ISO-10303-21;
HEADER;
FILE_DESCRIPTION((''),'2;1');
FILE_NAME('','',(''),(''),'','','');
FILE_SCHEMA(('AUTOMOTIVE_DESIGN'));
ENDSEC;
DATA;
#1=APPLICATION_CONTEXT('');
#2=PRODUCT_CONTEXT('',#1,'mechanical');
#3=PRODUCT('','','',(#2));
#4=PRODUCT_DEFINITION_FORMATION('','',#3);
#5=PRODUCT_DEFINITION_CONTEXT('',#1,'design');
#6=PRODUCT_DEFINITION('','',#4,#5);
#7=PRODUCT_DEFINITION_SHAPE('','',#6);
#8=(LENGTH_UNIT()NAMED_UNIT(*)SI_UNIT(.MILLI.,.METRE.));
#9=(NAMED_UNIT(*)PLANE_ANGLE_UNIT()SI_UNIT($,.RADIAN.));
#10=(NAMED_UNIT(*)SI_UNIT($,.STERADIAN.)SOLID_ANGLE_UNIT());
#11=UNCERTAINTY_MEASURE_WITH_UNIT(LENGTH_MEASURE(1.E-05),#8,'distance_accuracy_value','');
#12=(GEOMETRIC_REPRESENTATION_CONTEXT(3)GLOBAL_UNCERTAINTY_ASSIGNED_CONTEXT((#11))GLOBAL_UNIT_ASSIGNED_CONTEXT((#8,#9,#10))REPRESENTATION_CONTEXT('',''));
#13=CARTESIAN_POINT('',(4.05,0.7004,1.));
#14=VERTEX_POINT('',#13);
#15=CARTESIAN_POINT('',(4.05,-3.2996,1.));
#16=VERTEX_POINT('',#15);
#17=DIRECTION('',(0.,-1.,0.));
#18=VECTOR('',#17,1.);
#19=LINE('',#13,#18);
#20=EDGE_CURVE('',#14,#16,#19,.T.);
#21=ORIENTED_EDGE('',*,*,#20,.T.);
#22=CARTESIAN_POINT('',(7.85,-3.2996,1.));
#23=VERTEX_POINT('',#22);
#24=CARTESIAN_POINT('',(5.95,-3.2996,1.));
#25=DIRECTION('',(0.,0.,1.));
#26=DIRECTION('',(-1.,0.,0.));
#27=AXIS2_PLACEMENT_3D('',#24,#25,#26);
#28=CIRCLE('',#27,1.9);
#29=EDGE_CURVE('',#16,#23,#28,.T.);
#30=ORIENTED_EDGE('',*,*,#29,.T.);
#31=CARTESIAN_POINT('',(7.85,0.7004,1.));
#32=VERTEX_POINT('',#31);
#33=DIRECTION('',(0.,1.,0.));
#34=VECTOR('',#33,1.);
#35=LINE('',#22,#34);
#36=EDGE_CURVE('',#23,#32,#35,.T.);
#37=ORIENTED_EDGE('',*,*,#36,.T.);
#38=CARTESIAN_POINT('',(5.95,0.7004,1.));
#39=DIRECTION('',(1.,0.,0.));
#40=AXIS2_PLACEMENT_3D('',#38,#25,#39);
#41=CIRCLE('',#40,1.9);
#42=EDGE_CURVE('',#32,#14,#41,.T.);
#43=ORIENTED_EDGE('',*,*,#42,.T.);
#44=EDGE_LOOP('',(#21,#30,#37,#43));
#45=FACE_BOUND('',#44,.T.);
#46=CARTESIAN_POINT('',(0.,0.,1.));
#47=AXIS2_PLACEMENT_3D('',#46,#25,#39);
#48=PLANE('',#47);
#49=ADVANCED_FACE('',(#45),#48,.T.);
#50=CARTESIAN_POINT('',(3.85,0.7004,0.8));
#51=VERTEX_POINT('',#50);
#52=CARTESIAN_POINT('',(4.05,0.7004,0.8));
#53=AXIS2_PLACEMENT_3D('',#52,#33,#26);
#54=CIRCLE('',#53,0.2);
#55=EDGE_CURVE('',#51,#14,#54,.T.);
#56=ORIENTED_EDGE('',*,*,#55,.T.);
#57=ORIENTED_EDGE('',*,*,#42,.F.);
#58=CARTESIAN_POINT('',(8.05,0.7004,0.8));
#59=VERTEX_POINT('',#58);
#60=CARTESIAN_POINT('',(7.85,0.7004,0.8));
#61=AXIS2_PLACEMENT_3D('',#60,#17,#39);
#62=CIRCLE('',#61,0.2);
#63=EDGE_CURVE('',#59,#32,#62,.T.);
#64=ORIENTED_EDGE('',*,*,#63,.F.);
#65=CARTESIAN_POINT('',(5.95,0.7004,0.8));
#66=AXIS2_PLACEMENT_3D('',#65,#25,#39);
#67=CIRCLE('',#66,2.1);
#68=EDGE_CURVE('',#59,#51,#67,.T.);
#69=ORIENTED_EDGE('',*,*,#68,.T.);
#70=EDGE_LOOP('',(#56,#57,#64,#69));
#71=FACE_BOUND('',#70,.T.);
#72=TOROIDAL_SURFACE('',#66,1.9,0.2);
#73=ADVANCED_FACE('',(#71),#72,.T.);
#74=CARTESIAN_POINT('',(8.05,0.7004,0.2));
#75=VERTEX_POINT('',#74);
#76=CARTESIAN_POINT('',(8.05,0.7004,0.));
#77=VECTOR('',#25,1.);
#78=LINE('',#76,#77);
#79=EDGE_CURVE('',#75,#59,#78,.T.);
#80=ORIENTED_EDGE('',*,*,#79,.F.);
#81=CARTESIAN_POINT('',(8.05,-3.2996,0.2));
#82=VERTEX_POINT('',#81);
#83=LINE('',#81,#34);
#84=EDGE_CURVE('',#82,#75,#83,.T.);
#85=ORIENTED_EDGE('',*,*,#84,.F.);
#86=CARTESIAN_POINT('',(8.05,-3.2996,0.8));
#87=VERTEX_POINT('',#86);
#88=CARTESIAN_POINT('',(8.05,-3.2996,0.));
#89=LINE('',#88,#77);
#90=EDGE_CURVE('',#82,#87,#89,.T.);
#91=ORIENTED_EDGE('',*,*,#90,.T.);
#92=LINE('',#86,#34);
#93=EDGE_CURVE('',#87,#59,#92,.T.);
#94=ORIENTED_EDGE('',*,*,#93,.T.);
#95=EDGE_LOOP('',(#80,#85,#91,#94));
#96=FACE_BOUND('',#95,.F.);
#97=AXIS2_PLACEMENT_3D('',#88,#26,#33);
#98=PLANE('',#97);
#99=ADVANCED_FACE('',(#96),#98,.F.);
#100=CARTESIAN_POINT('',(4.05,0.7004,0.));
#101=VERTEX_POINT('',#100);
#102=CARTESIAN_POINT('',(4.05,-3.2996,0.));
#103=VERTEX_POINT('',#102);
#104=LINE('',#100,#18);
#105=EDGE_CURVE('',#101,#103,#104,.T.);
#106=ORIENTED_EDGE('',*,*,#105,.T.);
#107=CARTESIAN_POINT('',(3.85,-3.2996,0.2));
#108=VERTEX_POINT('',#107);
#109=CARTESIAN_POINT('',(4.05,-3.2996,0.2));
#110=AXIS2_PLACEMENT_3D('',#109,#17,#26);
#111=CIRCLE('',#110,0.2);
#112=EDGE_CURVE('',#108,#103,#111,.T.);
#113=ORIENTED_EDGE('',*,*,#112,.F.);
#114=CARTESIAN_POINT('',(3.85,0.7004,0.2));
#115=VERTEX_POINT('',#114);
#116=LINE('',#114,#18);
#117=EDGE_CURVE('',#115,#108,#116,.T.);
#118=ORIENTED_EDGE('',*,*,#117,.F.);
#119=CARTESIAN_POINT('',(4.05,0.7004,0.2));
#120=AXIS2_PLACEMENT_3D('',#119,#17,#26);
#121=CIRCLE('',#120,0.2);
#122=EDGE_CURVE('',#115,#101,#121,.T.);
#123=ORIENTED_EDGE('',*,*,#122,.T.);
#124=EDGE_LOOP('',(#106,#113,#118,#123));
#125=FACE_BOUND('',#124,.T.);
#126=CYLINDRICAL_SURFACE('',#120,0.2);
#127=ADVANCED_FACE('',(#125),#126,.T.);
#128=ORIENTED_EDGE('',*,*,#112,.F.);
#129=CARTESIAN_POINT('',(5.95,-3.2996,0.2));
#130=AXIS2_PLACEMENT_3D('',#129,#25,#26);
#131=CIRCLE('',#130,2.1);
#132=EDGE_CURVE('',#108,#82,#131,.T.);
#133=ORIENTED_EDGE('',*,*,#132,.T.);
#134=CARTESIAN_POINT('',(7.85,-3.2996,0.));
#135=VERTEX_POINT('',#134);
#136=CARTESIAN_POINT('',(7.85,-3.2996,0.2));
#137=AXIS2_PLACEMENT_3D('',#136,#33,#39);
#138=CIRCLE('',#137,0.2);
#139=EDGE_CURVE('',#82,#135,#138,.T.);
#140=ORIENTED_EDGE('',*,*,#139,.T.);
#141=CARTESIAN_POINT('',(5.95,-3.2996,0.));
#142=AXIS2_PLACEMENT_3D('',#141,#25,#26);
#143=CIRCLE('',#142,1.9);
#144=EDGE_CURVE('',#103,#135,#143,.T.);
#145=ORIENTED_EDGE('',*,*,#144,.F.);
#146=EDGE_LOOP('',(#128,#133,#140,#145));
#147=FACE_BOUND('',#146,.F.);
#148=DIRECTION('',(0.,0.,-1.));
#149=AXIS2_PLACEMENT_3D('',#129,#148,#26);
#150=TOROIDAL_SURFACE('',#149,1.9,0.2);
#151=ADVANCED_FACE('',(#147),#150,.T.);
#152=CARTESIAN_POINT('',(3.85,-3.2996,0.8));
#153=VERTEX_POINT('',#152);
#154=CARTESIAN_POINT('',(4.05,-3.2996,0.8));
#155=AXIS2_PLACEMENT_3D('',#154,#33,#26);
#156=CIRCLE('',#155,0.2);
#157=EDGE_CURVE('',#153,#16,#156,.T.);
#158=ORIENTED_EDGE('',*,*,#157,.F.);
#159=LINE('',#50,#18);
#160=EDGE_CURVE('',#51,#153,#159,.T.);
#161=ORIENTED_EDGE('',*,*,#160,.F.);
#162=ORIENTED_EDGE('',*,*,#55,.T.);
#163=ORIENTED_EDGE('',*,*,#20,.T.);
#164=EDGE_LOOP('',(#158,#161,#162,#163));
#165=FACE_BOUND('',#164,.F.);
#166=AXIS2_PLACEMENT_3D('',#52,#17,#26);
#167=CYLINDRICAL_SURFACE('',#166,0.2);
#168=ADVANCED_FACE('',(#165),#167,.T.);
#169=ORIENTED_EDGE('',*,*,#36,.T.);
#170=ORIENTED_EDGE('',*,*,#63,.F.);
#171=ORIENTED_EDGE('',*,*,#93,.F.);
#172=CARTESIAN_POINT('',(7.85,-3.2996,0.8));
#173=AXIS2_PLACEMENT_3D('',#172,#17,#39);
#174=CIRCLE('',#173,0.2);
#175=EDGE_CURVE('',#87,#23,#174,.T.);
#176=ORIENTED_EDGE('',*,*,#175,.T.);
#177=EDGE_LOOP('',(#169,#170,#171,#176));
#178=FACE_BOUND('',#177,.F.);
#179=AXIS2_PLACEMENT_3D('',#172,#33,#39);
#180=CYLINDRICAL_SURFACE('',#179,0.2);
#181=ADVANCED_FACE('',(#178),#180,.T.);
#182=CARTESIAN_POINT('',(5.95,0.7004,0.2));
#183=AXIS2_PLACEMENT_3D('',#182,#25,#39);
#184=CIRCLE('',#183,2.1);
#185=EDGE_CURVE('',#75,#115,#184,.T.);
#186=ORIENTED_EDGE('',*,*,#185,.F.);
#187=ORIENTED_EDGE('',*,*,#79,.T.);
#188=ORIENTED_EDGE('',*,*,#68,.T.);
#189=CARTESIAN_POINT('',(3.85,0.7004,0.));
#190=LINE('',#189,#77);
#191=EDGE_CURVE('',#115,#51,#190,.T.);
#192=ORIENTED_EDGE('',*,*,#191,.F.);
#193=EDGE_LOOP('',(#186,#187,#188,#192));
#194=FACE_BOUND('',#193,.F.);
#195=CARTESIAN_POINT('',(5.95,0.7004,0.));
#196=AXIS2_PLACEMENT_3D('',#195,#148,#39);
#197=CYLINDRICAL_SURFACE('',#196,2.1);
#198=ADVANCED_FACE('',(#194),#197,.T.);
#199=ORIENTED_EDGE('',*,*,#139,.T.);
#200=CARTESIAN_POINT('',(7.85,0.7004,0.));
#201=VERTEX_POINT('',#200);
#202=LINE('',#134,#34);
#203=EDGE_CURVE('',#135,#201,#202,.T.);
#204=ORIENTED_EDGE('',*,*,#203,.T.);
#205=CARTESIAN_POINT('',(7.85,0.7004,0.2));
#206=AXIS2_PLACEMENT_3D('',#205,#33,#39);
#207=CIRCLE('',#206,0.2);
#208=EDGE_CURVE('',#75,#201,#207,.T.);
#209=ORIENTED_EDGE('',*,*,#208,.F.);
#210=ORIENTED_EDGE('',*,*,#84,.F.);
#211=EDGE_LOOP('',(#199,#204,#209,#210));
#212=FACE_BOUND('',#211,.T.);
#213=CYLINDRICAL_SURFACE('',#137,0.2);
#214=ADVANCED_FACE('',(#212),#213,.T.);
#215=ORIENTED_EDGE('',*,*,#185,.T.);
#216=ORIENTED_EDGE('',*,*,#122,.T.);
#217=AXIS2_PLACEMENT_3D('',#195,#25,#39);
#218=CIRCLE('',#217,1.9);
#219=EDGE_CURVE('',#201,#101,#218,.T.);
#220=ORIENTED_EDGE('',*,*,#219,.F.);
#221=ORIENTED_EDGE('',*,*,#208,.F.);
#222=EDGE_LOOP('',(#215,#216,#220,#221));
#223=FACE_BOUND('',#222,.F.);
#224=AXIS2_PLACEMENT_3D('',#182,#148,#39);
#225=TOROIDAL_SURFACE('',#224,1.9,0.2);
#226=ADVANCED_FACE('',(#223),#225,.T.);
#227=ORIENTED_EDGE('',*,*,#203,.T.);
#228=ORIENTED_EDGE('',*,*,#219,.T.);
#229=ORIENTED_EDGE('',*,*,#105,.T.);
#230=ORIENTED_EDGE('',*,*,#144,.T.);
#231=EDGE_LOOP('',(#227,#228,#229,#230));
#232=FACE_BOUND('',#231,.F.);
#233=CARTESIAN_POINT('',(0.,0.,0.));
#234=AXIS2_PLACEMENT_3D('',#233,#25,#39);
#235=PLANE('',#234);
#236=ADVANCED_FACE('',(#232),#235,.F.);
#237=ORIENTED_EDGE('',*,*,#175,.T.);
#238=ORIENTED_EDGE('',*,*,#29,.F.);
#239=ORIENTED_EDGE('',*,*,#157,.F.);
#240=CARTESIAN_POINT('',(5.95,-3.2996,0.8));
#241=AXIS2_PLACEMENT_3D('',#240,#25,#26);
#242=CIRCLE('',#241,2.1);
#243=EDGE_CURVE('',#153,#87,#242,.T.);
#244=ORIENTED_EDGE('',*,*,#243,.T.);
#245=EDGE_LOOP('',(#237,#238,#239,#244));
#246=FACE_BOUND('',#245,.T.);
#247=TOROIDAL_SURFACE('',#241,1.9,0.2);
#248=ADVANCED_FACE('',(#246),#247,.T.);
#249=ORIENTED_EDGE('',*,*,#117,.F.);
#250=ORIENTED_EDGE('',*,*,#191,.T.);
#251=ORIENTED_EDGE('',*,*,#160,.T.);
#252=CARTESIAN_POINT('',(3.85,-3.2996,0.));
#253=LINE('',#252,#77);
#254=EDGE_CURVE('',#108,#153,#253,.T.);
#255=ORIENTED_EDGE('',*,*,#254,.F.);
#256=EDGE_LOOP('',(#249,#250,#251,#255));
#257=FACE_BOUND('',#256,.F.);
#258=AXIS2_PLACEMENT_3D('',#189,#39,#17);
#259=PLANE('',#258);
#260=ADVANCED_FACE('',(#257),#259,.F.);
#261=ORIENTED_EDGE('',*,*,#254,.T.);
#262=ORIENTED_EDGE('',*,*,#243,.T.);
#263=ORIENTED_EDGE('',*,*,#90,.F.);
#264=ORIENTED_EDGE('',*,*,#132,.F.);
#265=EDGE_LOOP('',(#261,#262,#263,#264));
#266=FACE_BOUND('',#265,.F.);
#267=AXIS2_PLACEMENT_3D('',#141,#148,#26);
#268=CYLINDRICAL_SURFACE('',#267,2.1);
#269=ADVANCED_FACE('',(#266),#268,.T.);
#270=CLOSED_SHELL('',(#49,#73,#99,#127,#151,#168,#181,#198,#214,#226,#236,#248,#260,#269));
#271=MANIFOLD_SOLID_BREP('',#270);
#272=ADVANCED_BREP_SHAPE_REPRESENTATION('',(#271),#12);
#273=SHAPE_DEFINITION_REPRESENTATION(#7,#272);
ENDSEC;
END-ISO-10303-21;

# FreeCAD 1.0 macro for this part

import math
import FreeCAD as App
import Part
import Sketcher

V = App.Vector
Q = App.Units.Quantity


def edges_at(feature, points):
    """Names of the edges that pass closest to the given points."""
    edges = feature.Shape.Edges
    near = lambda p: min(range(len(edges)), key=lambda i: edges[i].distToShape(Part.Vertex(*p))[0])
    return sorted({f"Edge{near(p) + 1}" for p in points})

doc = App.newDocument("Part")
body = doc.addObject("PartDesign::Body", "Body")

# Sketch on XY plane
sketch1 = body.newObject("Sketcher::SketchObject", "Sketch")
sketch1.AttachmentSupport = (doc.getObject("XY_Plane"), [""])
sketch1.MapMode = "FlatFace"
sketch1.addGeometry([
    Part.ArcOfCircle(Part.Circle(V(6, -3.3, 0), V(0, 0, 1), 2.1), math.radians(180), math.radians(360)),
    Part.LineSegment(V(8.1, -3.3, 0), V(8.1, 0.7, 0)),
    Part.ArcOfCircle(Part.Circle(V(6, 0.7, 0), V(0, 0, 1), 2.1), math.radians(0), math.radians(180)),
    Part.LineSegment(V(3.9, 0.7, 0), V(3.9, -3.3, 0)),
], False)
sketch1.addConstraint([
    Sketcher.Constraint("Tangent", 0, 2, 1, 1),
    Sketcher.Constraint("Tangent", 1, 2, 2, 1),
    Sketcher.Constraint("Tangent", 2, 2, 3, 1),
    Sketcher.Constraint("Tangent", 3, 2, 0, 1),
    Sketcher.Constraint("Vertical", 1),
    Sketcher.Constraint("Vertical", 3),
    Sketcher.Constraint("Radius", 0, Q("2.1 mm")),
    Sketcher.Constraint("DistanceY", 1, 1, 1, 2, Q("4 mm")),
    Sketcher.Constraint("DistanceX", -1, 1, 0, 3, Q("5.95 mm")),
    Sketcher.Constraint("DistanceY", 0, 3, -1, 1, Q("3.2996 mm")),
])
pad1 = body.newObject("PartDesign::Pad", "Pad")
pad1.Profile = sketch1
pad1.Length = 1
doc.recompute()

fillet = body.newObject("PartDesign::Fillet", "Fillet")
fillet.Base = (pad1, edges_at(pad1, [
    (5.95, 2.8, 1),
    (3.85, -1.3, 1),
    (5.95, -5.4, 1),
    (8.05, -1.3, 1),
    (5.95, 2.8, 0),
    (3.85, -1.3, 0),
    (5.95, -5.4, 0),
    (8.05, -1.3, 0),
]))
fillet.Radius = 0.2

doc.recompute()
